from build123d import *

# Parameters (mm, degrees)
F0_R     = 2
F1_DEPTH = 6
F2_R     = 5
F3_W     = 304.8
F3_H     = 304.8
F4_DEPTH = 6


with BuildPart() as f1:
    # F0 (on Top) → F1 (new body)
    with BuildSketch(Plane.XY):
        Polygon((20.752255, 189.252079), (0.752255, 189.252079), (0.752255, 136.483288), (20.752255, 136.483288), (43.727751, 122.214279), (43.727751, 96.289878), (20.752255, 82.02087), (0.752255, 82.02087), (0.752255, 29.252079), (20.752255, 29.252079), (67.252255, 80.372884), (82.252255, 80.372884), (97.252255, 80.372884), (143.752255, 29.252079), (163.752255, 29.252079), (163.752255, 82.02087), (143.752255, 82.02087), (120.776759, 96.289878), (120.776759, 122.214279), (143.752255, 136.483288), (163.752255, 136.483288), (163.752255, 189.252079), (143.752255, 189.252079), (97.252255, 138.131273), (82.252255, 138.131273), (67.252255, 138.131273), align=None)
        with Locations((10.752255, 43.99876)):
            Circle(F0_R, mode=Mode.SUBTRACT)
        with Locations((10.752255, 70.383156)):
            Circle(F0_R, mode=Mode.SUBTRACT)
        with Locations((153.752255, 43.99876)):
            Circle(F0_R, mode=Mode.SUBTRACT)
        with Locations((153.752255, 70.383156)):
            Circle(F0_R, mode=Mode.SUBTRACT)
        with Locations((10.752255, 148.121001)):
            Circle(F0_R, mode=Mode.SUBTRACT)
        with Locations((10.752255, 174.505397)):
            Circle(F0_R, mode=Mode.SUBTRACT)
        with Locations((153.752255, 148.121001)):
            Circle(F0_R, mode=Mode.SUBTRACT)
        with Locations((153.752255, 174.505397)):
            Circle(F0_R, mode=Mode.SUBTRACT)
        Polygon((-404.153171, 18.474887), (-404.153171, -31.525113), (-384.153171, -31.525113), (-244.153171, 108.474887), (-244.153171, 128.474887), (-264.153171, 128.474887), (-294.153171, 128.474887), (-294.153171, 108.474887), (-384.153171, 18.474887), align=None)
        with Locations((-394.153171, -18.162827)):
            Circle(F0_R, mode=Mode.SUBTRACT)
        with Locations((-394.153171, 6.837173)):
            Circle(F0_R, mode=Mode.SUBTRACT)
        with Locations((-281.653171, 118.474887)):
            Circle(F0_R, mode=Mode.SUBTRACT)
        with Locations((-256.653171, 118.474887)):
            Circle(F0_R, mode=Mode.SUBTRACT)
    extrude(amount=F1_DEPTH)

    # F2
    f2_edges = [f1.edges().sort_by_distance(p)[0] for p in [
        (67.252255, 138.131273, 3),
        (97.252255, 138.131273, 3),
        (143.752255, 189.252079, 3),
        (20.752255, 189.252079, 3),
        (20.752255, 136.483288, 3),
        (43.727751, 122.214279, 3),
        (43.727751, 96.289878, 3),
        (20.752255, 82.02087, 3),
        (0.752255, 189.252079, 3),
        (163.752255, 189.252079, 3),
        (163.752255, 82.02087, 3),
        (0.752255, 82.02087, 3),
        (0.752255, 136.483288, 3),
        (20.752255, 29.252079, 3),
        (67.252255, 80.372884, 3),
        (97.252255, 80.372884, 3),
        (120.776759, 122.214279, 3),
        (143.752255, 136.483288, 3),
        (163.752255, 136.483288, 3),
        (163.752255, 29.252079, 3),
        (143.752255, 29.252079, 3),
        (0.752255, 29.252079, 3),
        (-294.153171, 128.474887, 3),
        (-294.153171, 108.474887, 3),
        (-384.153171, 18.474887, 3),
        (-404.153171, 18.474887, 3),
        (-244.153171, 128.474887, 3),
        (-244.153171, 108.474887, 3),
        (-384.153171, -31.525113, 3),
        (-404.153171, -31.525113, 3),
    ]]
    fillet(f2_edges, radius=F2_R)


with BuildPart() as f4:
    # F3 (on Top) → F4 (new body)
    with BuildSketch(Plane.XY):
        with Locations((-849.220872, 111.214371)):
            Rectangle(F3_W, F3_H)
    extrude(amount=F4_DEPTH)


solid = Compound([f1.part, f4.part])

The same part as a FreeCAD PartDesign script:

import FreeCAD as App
import Part
import Sketcher
Q = App.Units.Quantity


def edges_at(feature, points):
    """Names of the edges that pass closest to the given points."""
    edges = feature.Shape.Edges
    near = lambda p: min(range(len(edges)), key=lambda i: edges[i].distToShape(Part.Vertex(*p))[0])
    return sorted({f"Edge{near(p) + 1}" for p in points})

doc = App.newDocument("Part")
params = doc.addObject("Spreadsheet::Sheet", "Params")
for row, (alias, value) in enumerate([
    ("sketch1_diameter", "4 mm"),
    ("sketch1_width", "20 mm"),
    ("sketch1_width2", "30 mm"),
    ("sketch1_width3", "50 mm"),
    ("pad1_length", "6 mm"),
    ("fillet_radius", "5 mm"),
    ("sketch2_width", "304.8 mm"),
    ("pad2_length", "6 mm"),
], start=1):
    params.set(f"A{row}", alias)
    params.set(f"B{row}", "=" + value)
    params.setAlias(f"B{row}", alias)

body = doc.addObject("PartDesign::Body", "Body")
body.AllowCompound = True

# Sketch on XY plane
sketch1 = body.newObject("Sketcher::SketchObject", "Sketch")
sketch1.AttachmentSupport = (doc.getObject("XY_Plane"), [""])
sketch1.MapMode = "FlatFace"
sketch1.addGeometry([
    Part.LineSegment(App.Vector(20.8, 189.3, 0), App.Vector(0.8, 189.3, 0)),  # 0
    Part.LineSegment(App.Vector(0.8, 189.3, 0), App.Vector(0.8, 136.5, 0)),  # 1
    Part.LineSegment(App.Vector(0.8, 136.5, 0), App.Vector(20.8, 136.5, 0)),  # 2
    Part.LineSegment(App.Vector(20.8, 136.5, 0), App.Vector(43.7, 122.2, 0)),  # 3
    Part.LineSegment(App.Vector(43.7, 122.2, 0), App.Vector(43.7, 96.3, 0)),  # 4
    Part.LineSegment(App.Vector(43.7, 96.3, 0), App.Vector(20.8, 82, 0)),  # 5
    Part.LineSegment(App.Vector(20.8, 82, 0), App.Vector(0.8, 82, 0)),  # 6
    Part.LineSegment(App.Vector(0.8, 82, 0), App.Vector(0.8, 29.3, 0)),  # 7
    Part.LineSegment(App.Vector(0.8, 29.3, 0), App.Vector(20.8, 29.3, 0)),  # 8
    Part.LineSegment(App.Vector(20.8, 29.3, 0), App.Vector(67.3, 80.4, 0)),  # 9
    Part.LineSegment(App.Vector(67.3, 80.4, 0), App.Vector(97.3, 80.4, 0)),  # 10
    Part.LineSegment(App.Vector(97.3, 80.4, 0), App.Vector(143.8, 29.3, 0)),  # 11
    Part.LineSegment(App.Vector(143.8, 29.3, 0), App.Vector(163.8, 29.3, 0)),  # 12
    Part.LineSegment(App.Vector(163.8, 29.3, 0), App.Vector(163.8, 82, 0)),  # 13
    Part.LineSegment(App.Vector(163.8, 82, 0), App.Vector(143.8, 82, 0)),  # 14
    Part.LineSegment(App.Vector(143.8, 82, 0), App.Vector(120.8, 96.3, 0)),  # 15
    Part.LineSegment(App.Vector(120.8, 96.3, 0), App.Vector(120.8, 122.2, 0)),  # 16
    Part.LineSegment(App.Vector(120.8, 122.2, 0), App.Vector(143.8, 136.5, 0)),  # 17
    Part.LineSegment(App.Vector(143.8, 136.5, 0), App.Vector(163.8, 136.5, 0)),  # 18
    Part.LineSegment(App.Vector(163.8, 136.5, 0), App.Vector(163.8, 189.3, 0)),  # 19
    Part.LineSegment(App.Vector(163.8, 189.3, 0), App.Vector(143.8, 189.3, 0)),  # 20
    Part.LineSegment(App.Vector(143.8, 189.3, 0), App.Vector(97.3, 138.1, 0)),  # 21
    Part.LineSegment(App.Vector(97.3, 138.1, 0), App.Vector(67.3, 138.1, 0)),  # 22
    Part.LineSegment(App.Vector(67.3, 138.1, 0), App.Vector(20.8, 189.3, 0)),  # 23
    Part.Circle(App.Vector(10.8, 44, 0), App.Vector(0, 0, 1), 2),  # 24
    Part.Circle(App.Vector(10.8, 70.4, 0), App.Vector(0, 0, 1), 2),  # 25
    Part.Circle(App.Vector(153.8, 44, 0), App.Vector(0, 0, 1), 2),  # 26
    Part.Circle(App.Vector(153.8, 70.4, 0), App.Vector(0, 0, 1), 2),  # 27
    Part.Circle(App.Vector(10.8, 148.1, 0), App.Vector(0, 0, 1), 2),  # 28
    Part.Circle(App.Vector(10.8, 174.5, 0), App.Vector(0, 0, 1), 2),  # 29
    Part.Circle(App.Vector(153.8, 148.1, 0), App.Vector(0, 0, 1), 2),  # 30
    Part.Circle(App.Vector(153.8, 174.5, 0), App.Vector(0, 0, 1), 2),  # 31
    Part.LineSegment(App.Vector(-404.2, 18.5, 0), App.Vector(-404.2, -31.5, 0)),  # 32
    Part.LineSegment(App.Vector(-404.2, -31.5, 0), App.Vector(-384.2, -31.5, 0)),  # 33
    Part.LineSegment(App.Vector(-384.2, -31.5, 0), App.Vector(-244.2, 108.5, 0)),  # 34
    Part.LineSegment(App.Vector(-244.2, 108.5, 0), App.Vector(-244.2, 128.5, 0)),  # 35
    Part.LineSegment(App.Vector(-244.2, 128.5, 0), App.Vector(-294.2, 128.5, 0)),  # 36
    Part.LineSegment(App.Vector(-294.2, 128.5, 0), App.Vector(-294.2, 108.5, 0)),  # 37
    Part.LineSegment(App.Vector(-294.2, 108.5, 0), App.Vector(-384.2, 18.5, 0)),  # 38
    Part.LineSegment(App.Vector(-384.2, 18.5, 0), App.Vector(-404.2, 18.5, 0)),  # 39
    Part.Circle(App.Vector(-394.2, -18.2, 0), App.Vector(0, 0, 1), 2),  # 40
    Part.Circle(App.Vector(-394.2, 6.8, 0), App.Vector(0, 0, 1), 2),  # 41
    Part.Circle(App.Vector(-281.7, 118.5, 0), App.Vector(0, 0, 1), 2),  # 42
    Part.Circle(App.Vector(-256.7, 118.5, 0), App.Vector(0, 0, 1), 2),  # 43
], False)
sketch1.addConstraint([
    Sketcher.Constraint("Coincident", 0, 2, 1, 1),
    Sketcher.Constraint("Coincident", 1, 2, 2, 1),
    Sketcher.Constraint("Coincident", 2, 2, 3, 1),
    Sketcher.Constraint("Coincident", 3, 2, 4, 1),
    Sketcher.Constraint("Coincident", 4, 2, 5, 1),
    Sketcher.Constraint("Coincident", 5, 2, 6, 1),
    Sketcher.Constraint("Coincident", 6, 2, 7, 1),
    Sketcher.Constraint("Coincident", 7, 2, 8, 1),
    Sketcher.Constraint("Coincident", 8, 2, 9, 1),
    Sketcher.Constraint("Coincident", 9, 2, 10, 1),
    Sketcher.Constraint("Coincident", 10, 2, 11, 1),
    Sketcher.Constraint("Coincident", 11, 2, 12, 1),
    Sketcher.Constraint("Coincident", 12, 2, 13, 1),
    Sketcher.Constraint("Coincident", 13, 2, 14, 1),
    Sketcher.Constraint("Coincident", 14, 2, 15, 1),
    Sketcher.Constraint("Coincident", 15, 2, 16, 1),
    Sketcher.Constraint("Coincident", 16, 2, 17, 1),
    Sketcher.Constraint("Coincident", 17, 2, 18, 1),
    Sketcher.Constraint("Coincident", 18, 2, 19, 1),
    Sketcher.Constraint("Coincident", 19, 2, 20, 1),
    Sketcher.Constraint("Coincident", 20, 2, 21, 1),
    Sketcher.Constraint("Coincident", 21, 2, 22, 1),
    Sketcher.Constraint("Coincident", 22, 2, 23, 1),
    Sketcher.Constraint("Coincident", 23, 2, 0, 1),
    Sketcher.Constraint("Coincident", 32, 2, 33, 1),
    Sketcher.Constraint("Coincident", 33, 2, 34, 1),
    Sketcher.Constraint("Coincident", 34, 2, 35, 1),
    Sketcher.Constraint("Coincident", 35, 2, 36, 1),
    Sketcher.Constraint("Coincident", 36, 2, 37, 1),
    Sketcher.Constraint("Coincident", 37, 2, 38, 1),
    Sketcher.Constraint("Coincident", 38, 2, 39, 1),
    Sketcher.Constraint("Coincident", 39, 2, 32, 1),
    Sketcher.Constraint("Horizontal", 0),
    Sketcher.Constraint("Vertical", 1),
    Sketcher.Constraint("Horizontal", 2),
    Sketcher.Constraint("Vertical", 4),
    Sketcher.Constraint("Horizontal", 6),
    Sketcher.Constraint("Vertical", 7),
    Sketcher.Constraint("Horizontal", 8),
    Sketcher.Constraint("Horizontal", 10),
    Sketcher.Constraint("Horizontal", 12),
    Sketcher.Constraint("Vertical", 13),
    Sketcher.Constraint("Horizontal", 14),
    Sketcher.Constraint("Vertical", 16),
    Sketcher.Constraint("Horizontal", 18),
    Sketcher.Constraint("Vertical", 19),
    Sketcher.Constraint("Horizontal", 20),
    Sketcher.Constraint("Horizontal", 22),
    Sketcher.Constraint("Vertical", 32),
    Sketcher.Constraint("Horizontal", 33),
    Sketcher.Constraint("Vertical", 35),
    Sketcher.Constraint("Horizontal", 36),
    Sketcher.Constraint("Vertical", 37),
    Sketcher.Constraint("Horizontal", 39),
    Sketcher.Constraint("Equal", 24, 25),
    Sketcher.Constraint("Equal", 25, 26),
    Sketcher.Constraint("Equal", 26, 27),
    Sketcher.Constraint("Equal", 27, 28),
    Sketcher.Constraint("Equal", 28, 29),
    Sketcher.Constraint("Equal", 29, 30),
    Sketcher.Constraint("Equal", 30, 31),
    Sketcher.Constraint("Equal", 31, 40),
    Sketcher.Constraint("Equal", 40, 41),
    Sketcher.Constraint("Equal", 41, 42),
    Sketcher.Constraint("Equal", 42, 43),
    Sketcher.Constraint("Parallel", 3, 15),
    Sketcher.Constraint("Parallel", 5, 17),
    Sketcher.Constraint("Parallel", 9, 21),
    Sketcher.Constraint("Parallel", 11, 23),
    Sketcher.Constraint("Parallel", 34, 38),
    Sketcher.Constraint("Horizontal", 24, 3, 26, 3),
    Sketcher.Constraint("Horizontal", 25, 3, 27, 3),
    Sketcher.Constraint("Horizontal", 28, 3, 30, 3),
    Sketcher.Constraint("Horizontal", 29, 3, 31, 3),
    Sketcher.Constraint("Horizontal", 42, 3, 43, 3),
    Sketcher.Constraint("Horizontal", 8, 2, 11, 2),
    Sketcher.Constraint("Horizontal", 6, 2, 13, 2),
    Sketcher.Constraint("Horizontal", 4, 2, 15, 2),
    Sketcher.Constraint("Horizontal", 3, 2, 16, 2),
    Sketcher.Constraint("Horizontal", 2, 2, 17, 2),
    Sketcher.Constraint("Horizontal", 0, 2, 19, 2),
    Sketcher.Constraint("Horizontal", 34, 2, 37, 2),
    Sketcher.Constraint("Vertical", 24, 3, 25, 3),
    Sketcher.Constraint("Vertical", 26, 3, 27, 3),
    Sketcher.Constraint("Vertical", 25, 3, 28, 3),
    Sketcher.Constraint("Vertical", 28, 3, 29, 3),
    Sketcher.Constraint("Vertical", 27, 3, 30, 3),
    Sketcher.Constraint("Vertical", 30, 3, 31, 3),
    Sketcher.Constraint("Vertical", 40, 3, 41, 3),
    Sketcher.Constraint("Vertical", 2, 2, 5, 2),
    Sketcher.Constraint("Vertical", 1, 2, 6, 2),
    Sketcher.Constraint("Vertical", 5, 2, 8, 2),
    Sketcher.Constraint("Vertical", 11, 2, 14, 2),
    Sketcher.Constraint("Vertical", 14, 2, 17, 2),
    Sketcher.Constraint("Vertical", 13, 2, 18, 2),
    Sketcher.Constraint("Vertical", 17, 2, 20, 2),
    Sketcher.Constraint("Vertical", 10, 2, 21, 2),
    Sketcher.Constraint("Vertical", 9, 2, 22, 2),
    Sketcher.Constraint("Vertical", 8, 2, 23, 2),
    Sketcher.Constraint("Vertical", 33, 2, 38, 2),
    Sketcher.Constraint("Equal", 8, 12),
    Sketcher.Constraint("Equal", 20, 33),
    Sketcher.Constraint("Equal", 1, 7),
    Sketcher.Constraint("Equal", 36, 32),
    Sketcher.Constraint("Equal", 39, 35),
    Sketcher.Constraint("Diameter", 24, Q("4 mm")),
    Sketcher.Constraint("DistanceX", 0, 2, 0, 1, Q("20 mm")),
    Sketcher.Constraint("DistanceX", 10, 1, 10, 2, Q("30 mm")),
    Sketcher.Constraint("DistanceX", 36, 2, 36, 1, Q("50 mm")),
    Sketcher.Constraint("DistanceX", 24, 3, 26, 3, Q("143 mm")),
    Sketcher.Constraint("DistanceY", 40, 3, 41, 3, Q("25 mm")),
    Sketcher.Constraint("DistanceX", 42, 3, 43, 3, Q("25 mm")),
    Sketcher.Constraint("DistanceX", 0, 2, 29, 3, Q("10 mm")),
    Sketcher.Constraint("DistanceX", 11, 2, 26, 3, Q("10 mm")),
    Sketcher.Constraint("DistanceX", 32, 2, 40, 3, Q("10 mm")),
    Sketcher.Constraint("DistanceY", 32, 2, 42, 3, Q("150 mm")),
    Sketcher.Constraint("DistanceY", 34, 2, 43, 3, Q("10 mm")),
    Sketcher.Constraint("DistanceX", 41, 3, 42, 3, Q("112.5 mm")),
    Sketcher.Constraint("DistanceY", 4, 2, 4, 1, Q("25.924401 mm")),
    Sketcher.Constraint("DistanceY", -1, 1, 28, 3, Q("148.121001 mm")),
    Sketcher.Constraint("DistanceY", 1, 2, 1, 1, Q("52.768791 mm")),
    Sketcher.Constraint("DistanceY", 7, 2, 4, 2, Q("67.037799 mm")),
    Sketcher.Constraint("Distance", 3, Q("27.045851 mm")),
    Sketcher.Constraint("Distance", 9, Q("69.10562 mm")),
    Sketcher.Constraint("DistanceY", -1, 1, 24, 3, Q("43.99876 mm")),
    Sketcher.Constraint("DistanceX", 40, 3, -1, 1, Q("394.153171 mm")),
    Sketcher.Constraint("DistanceY", -1, 1, 0, 2, Q("189.252079 mm")),
    Sketcher.Constraint("DistanceX", -1, 1, 3, 2, Q("43.727751 mm")),
    Sketcher.Constraint("DistanceY", 25, 3, 29, 3, Q("104.122241 mm")),
    Sketcher.Constraint("DistanceY", 40, 3, 28, 3, Q("166.283828 mm")),
    Sketcher.Constraint("DistanceY", 25, 3, 42, 3, Q("48.091731 mm")),
    Sketcher.Constraint("DistanceY", 1, 2, 29, 3, Q("38.022109 mm")),
])
sketch1.setExpression("Constraints[105]", "Params.sketch1_diameter")
sketch1.setExpression("Constraints[106]", "Params.sketch1_width")
sketch1.setExpression("Constraints[107]", "Params.sketch1_width2")
sketch1.setExpression("Constraints[108]", "Params.sketch1_width3")
pad1 = body.newObject("PartDesign::Pad", "Pad")
pad1.Profile = sketch1
pad1.setExpression("Length", "Params.pad1_length")
doc.recompute()

fillet = body.newObject("PartDesign::Fillet", "Fillet")
fillet.Base = (pad1, edges_at(pad1, [
    (67.252, 138.131, 3),
    (97.252, 138.131, 3),
    (143.752, 189.252, 3),
    (20.752, 189.252, 3),
    (20.752, 136.483, 3),
    (43.728, 122.214, 3),
    (43.728, 96.29, 3),
    (20.752, 82.021, 3),
    (0.752, 189.252, 3),
    (163.752, 189.252, 3),
    (163.752, 82.021, 3),
    (0.752, 82.021, 3),
    (0.752, 136.483, 3),
    (20.752, 29.252, 3),
    (67.252, 80.373, 3),
    (97.252, 80.373, 3),
    (120.777, 122.214, 3),
    (143.752, 136.483, 3),
    (163.752, 136.483, 3),
    (163.752, 29.252, 3),
    (143.752, 29.252, 3),
    (0.752, 29.252, 3),
    (-294.153, 128.475, 3),
    (-294.153, 108.475, 3),
    (-384.153, 18.475, 3),
    (-404.153, 18.475, 3),
    (-244.153, 128.475, 3),
    (-244.153, 108.475, 3),
    (-384.153, -31.525, 3),
    (-404.153, -31.525, 3),
]))
fillet.setExpression("Radius", "Params.fillet_radius")
body2 = doc.addObject("PartDesign::Body", "Body001")

# Sketch on XY plane
sketch2 = body2.newObject("Sketcher::SketchObject", "Sketch001")
sketch2.AttachmentSupport = (doc.getObject("XY_Plane001"), [""])
sketch2.MapMode = "FlatFace"
sketch2.addGeometry([
    Part.LineSegment(App.Vector(-1002, 264, 0), App.Vector(-1002, -41, 0)),
    Part.LineSegment(App.Vector(-1002, -41, 0), App.Vector(-697, -41, 0)),
    Part.LineSegment(App.Vector(-697, -41, 0), App.Vector(-697, 264, 0)),
    Part.LineSegment(App.Vector(-697, 264, 0), App.Vector(-1002, 264, 0)),
], False)
sketch2.addConstraint([
    Sketcher.Constraint("Coincident", 0, 2, 1, 1),
    Sketcher.Constraint("Coincident", 1, 2, 2, 1),
    Sketcher.Constraint("Coincident", 2, 2, 3, 1),
    Sketcher.Constraint("Coincident", 3, 2, 0, 1),
    Sketcher.Constraint("Vertical", 0),
    Sketcher.Constraint("Horizontal", 1),
    Sketcher.Constraint("Vertical", 2),
    Sketcher.Constraint("Horizontal", 3),
    Sketcher.Constraint("Equal", 3, 0),
    Sketcher.Constraint("DistanceX", 1, 1, 1, 2, Q("304.8 mm")),
    Sketcher.Constraint("DistanceX", 0, 2, -1, 1, Q("1001.620872 mm")),
    Sketcher.Constraint("DistanceY", 0, 2, -1, 1, Q("41.185629 mm")),
])
sketch2.setExpression("Constraints[9]", "Params.sketch2_width")
pad2 = body2.newObject("PartDesign::Pad", "Pad001")
pad2.Profile = sketch2
pad2.setExpression("Length", "Params.pad2_length")

doc.recompute()
